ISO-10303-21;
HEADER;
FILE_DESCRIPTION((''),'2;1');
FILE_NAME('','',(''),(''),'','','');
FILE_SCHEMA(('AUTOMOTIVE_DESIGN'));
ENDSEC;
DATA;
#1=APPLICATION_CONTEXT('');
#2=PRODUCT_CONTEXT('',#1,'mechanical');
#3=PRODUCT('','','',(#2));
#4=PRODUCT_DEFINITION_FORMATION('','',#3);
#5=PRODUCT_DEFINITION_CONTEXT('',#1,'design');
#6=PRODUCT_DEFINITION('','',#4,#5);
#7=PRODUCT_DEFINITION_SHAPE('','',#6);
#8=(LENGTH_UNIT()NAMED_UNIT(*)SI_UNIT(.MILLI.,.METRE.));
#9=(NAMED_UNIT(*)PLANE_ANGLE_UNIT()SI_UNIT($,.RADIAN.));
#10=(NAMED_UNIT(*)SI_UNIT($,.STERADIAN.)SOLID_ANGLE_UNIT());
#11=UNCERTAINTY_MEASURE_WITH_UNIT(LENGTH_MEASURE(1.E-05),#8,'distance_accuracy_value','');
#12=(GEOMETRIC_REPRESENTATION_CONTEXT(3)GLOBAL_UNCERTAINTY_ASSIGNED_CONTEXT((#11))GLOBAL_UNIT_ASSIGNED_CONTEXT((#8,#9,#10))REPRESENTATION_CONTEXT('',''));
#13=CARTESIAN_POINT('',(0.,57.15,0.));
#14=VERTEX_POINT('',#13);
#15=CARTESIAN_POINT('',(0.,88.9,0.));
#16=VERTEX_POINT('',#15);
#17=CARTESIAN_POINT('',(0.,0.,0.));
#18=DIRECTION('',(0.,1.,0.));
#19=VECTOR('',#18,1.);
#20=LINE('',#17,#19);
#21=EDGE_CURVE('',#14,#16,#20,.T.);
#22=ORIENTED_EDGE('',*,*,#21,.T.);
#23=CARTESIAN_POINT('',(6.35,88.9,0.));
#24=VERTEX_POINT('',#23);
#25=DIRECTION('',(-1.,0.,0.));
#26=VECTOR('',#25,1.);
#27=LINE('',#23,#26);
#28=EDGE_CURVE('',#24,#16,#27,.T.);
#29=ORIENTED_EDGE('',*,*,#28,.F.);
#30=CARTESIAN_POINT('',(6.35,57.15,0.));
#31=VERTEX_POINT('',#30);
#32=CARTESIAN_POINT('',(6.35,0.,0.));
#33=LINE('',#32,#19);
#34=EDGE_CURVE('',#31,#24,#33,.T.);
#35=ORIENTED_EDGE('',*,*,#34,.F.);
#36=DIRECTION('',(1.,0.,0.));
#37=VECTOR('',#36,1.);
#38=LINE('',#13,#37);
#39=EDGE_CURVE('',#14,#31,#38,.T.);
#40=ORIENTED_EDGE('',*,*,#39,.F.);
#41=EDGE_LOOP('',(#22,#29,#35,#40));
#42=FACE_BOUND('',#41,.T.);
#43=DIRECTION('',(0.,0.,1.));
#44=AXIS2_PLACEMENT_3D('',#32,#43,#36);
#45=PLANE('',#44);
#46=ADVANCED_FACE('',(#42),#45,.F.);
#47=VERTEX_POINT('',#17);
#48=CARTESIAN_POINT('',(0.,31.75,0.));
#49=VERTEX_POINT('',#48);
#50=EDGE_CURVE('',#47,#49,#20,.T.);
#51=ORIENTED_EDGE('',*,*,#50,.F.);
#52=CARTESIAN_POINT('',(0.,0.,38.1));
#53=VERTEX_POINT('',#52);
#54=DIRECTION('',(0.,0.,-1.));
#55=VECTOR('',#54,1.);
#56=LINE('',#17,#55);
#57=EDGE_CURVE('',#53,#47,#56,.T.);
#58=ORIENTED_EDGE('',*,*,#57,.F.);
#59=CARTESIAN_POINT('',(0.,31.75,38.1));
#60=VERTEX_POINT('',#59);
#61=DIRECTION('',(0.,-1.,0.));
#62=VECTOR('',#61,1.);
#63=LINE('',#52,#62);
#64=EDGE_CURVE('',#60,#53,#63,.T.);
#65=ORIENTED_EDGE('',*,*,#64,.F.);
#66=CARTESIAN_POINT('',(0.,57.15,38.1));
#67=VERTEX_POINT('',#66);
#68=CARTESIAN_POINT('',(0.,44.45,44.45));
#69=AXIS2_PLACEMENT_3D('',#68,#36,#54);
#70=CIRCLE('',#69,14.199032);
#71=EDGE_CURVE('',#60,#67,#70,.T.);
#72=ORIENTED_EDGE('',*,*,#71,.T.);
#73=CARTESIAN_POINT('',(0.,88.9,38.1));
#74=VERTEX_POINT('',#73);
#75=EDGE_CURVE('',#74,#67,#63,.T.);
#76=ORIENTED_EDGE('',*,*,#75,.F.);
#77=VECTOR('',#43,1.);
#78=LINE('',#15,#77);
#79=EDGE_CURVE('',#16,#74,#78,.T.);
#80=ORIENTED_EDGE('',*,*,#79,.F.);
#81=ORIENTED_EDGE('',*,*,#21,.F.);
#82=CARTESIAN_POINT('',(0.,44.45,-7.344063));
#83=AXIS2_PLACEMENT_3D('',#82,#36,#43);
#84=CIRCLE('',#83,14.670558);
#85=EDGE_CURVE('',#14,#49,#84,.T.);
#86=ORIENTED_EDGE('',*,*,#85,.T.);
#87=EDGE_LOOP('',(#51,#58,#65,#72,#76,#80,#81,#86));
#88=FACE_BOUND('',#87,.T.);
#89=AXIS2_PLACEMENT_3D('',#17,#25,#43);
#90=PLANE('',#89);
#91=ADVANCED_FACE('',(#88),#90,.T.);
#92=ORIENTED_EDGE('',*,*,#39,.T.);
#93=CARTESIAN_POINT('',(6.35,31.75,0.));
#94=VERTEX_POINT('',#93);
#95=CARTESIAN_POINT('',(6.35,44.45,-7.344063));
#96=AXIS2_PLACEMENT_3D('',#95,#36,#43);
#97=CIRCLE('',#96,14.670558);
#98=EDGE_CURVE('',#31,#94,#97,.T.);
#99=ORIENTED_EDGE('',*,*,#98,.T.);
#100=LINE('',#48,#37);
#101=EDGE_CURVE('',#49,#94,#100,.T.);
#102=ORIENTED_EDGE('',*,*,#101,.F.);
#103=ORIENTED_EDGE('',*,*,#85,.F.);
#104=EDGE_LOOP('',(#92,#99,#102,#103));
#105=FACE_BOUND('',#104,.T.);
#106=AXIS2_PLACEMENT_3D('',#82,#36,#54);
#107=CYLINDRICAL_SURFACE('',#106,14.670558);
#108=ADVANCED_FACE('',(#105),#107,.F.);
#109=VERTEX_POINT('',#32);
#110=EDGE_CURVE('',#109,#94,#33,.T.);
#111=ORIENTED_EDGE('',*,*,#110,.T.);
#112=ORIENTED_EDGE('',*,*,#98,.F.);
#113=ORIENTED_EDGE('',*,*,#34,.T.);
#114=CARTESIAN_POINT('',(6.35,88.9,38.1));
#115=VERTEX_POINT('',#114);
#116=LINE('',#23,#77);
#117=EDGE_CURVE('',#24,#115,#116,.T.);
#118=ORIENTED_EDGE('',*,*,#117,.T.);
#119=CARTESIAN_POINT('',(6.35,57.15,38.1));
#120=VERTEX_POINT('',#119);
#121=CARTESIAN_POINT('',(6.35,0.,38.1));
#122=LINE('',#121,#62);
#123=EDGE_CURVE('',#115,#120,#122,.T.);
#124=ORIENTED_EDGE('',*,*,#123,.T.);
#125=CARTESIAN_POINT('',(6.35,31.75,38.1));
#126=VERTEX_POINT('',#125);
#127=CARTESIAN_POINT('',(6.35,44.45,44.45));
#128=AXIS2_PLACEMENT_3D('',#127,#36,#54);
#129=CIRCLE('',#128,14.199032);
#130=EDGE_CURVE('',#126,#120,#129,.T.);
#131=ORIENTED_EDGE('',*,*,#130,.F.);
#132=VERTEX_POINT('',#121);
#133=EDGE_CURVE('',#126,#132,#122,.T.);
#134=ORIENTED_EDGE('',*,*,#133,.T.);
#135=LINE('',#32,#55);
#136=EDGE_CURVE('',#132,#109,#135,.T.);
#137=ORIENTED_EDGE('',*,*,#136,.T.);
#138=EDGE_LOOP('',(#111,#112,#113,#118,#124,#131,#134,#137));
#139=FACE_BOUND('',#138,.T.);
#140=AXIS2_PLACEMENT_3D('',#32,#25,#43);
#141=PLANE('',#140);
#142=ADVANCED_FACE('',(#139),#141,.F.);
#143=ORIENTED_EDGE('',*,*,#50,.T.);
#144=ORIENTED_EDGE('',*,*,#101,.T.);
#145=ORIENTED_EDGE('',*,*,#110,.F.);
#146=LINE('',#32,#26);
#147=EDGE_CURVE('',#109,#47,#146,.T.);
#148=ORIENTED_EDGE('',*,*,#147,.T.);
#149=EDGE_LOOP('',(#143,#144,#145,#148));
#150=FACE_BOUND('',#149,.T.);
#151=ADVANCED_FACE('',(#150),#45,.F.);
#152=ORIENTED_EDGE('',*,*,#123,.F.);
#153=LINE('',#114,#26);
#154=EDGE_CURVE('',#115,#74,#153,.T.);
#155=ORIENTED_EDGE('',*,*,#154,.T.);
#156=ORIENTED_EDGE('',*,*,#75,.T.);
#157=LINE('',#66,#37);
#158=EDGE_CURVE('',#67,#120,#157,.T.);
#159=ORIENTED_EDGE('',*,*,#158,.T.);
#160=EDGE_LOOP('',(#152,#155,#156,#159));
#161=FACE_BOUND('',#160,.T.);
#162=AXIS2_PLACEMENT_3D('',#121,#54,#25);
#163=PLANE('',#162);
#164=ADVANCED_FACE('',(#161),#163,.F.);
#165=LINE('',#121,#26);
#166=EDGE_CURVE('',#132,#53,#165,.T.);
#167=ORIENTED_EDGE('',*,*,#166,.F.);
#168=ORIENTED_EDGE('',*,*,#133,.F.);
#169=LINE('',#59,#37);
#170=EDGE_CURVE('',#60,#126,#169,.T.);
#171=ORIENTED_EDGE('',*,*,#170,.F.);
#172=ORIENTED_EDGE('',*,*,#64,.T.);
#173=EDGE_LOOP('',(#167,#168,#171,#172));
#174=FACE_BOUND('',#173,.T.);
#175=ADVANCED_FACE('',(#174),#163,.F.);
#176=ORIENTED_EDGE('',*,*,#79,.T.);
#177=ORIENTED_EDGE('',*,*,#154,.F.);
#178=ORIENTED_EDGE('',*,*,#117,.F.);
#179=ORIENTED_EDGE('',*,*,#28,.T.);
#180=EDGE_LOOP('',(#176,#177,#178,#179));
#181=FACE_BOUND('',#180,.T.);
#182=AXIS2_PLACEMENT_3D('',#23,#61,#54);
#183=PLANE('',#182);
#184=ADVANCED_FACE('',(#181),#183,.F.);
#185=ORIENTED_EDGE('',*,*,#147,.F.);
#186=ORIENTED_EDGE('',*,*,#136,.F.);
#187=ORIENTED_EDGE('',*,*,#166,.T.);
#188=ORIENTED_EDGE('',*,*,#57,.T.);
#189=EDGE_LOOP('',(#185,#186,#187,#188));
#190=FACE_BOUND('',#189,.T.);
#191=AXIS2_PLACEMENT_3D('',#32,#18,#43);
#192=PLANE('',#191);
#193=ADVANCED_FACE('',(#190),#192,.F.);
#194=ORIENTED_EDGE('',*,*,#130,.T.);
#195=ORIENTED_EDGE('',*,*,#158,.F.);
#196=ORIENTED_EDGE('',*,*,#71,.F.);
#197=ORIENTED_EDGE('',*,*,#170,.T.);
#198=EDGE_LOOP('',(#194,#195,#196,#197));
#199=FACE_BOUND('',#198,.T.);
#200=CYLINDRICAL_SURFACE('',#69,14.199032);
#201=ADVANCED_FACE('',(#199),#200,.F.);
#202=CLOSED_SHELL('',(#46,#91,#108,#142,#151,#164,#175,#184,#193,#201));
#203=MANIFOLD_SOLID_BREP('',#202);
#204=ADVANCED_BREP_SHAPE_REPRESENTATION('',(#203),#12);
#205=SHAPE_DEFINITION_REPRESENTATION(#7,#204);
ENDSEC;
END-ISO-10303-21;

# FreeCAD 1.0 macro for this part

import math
import FreeCAD as App
import Part
import Sketcher
Q = App.Units.Quantity

doc = App.newDocument("Part")
body = doc.addObject("PartDesign::Body", "Body")

# Sketch on YZ plane
sketch1 = doc.addObject("Sketcher::SketchObject", "Sketch")
body.addObject(sketch1)
sketch1.AttachmentSupport = (doc.YZ_Plane, [""])
sketch1.MapMode = "FlatFace"
sketch1.addGeometry([
    Part.LineSegment(App.Vector(0, 38, 0), App.Vector(0, 0, 0)),
    Part.LineSegment(App.Vector(0, 0, 0), App.Vector(89, 0, 0)),
    Part.LineSegment(App.Vector(89, 0, 0), App.Vector(89, 38, 0)),
    Part.LineSegment(App.Vector(89, 38, 0), App.Vector(0, 38, 0)),
], False)
sketch1.addConstraint([
    Sketcher.Constraint("Coincident", 0, 2, 1, 1),
    Sketcher.Constraint("Coincident", 1, 2, 2, 1),
    Sketcher.Constraint("Coincident", 2, 2, 3, 1),
    Sketcher.Constraint("Coincident", 3, 2, 0, 1),
    Sketcher.Constraint("Vertical", 0),
    Sketcher.Constraint("Horizontal", 1),
    Sketcher.Constraint("Vertical", 2),
    Sketcher.Constraint("Horizontal", 3),
    Sketcher.Constraint("Coincident", 0, 2, -1, 1),
    Sketcher.Constraint("DistanceX", 1, 1, 1, 2, Q("3.5 in")),
    Sketcher.Constraint("DistanceY", 0, 2, 0, 1, Q("1.5 in")),
])
pad1 = doc.addObject("PartDesign::Pad", "Pad")
body.addObject(pad1)
pad1.Profile = sketch1
pad1.Length = Q("0.25 in")

# Sketch on YZ plane
sketch2 = doc.addObject("Sketcher::SketchObject", "Sketch001")
body.addObject(sketch2)
sketch2.AttachmentSupport = (doc.YZ_Plane, [""])
sketch2.MapMode = "FlatFace"
sketch2.AttachmentOffset = App.Placement(App.Vector(0, 0, 0.25 * 25.4), App.Rotation())
sketch2.addGeometry([
    Part.LineSegment(App.Vector(57, 38, 0), App.Vector(32, 38, 0)),
    Part.ArcOfCircle(Part.Circle(App.Vector(44, 44, 0), App.Vector(0, 0, 1), 14), math.radians(-153), math.radians(-27)),
    Part.LineSegment(App.Vector(32, 0, 0), App.Vector(57, 0, 0)),
    Part.ArcOfCircle(Part.Circle(App.Vector(44, -7, 0), App.Vector(0, 0, 1), 15), math.radians(30), math.radians(150)),
], False)
sketch2.addConstraint([
    Sketcher.Constraint("Coincident", 0, 1, 1, 2),
    Sketcher.Constraint("Coincident", 1, 1, 0, 2),
    Sketcher.Constraint("Coincident", 2, 1, 3, 2),
    Sketcher.Constraint("Coincident", 3, 1, 2, 2),
    Sketcher.Constraint("Horizontal", 0),
    Sketcher.Constraint("Horizontal", 2),
    Sketcher.Constraint("PointOnObject", 2, 1, -1),
    Sketcher.Constraint("Vertical", 1, 3, 3, 3),
    Sketcher.Constraint("Vertical", 1, 1, 2, 1),
    Sketcher.Constraint("DistanceX", 0, 2, 0, 1, Q("1 in")),
    Sketcher.Constraint("DistanceY", -1, 1, 0, 1, Q("1.5 in")),
    Sketcher.Constraint("DistanceX", -1, 1, 1, 3, Q("1.75 in")),
    Sketcher.Constraint("DistanceY", -1, 1, 1, 3, Q("1.75 in")),
    Sketcher.Constraint("Radius", 3, Q("14.670558 mm")),
])
pocket1 = doc.addObject("PartDesign::Pocket", "Pocket")
body.addObject(pocket1)
pocket1.Profile = sketch2
pocket1.Length = Q("0.25 in")

doc.recompute()
